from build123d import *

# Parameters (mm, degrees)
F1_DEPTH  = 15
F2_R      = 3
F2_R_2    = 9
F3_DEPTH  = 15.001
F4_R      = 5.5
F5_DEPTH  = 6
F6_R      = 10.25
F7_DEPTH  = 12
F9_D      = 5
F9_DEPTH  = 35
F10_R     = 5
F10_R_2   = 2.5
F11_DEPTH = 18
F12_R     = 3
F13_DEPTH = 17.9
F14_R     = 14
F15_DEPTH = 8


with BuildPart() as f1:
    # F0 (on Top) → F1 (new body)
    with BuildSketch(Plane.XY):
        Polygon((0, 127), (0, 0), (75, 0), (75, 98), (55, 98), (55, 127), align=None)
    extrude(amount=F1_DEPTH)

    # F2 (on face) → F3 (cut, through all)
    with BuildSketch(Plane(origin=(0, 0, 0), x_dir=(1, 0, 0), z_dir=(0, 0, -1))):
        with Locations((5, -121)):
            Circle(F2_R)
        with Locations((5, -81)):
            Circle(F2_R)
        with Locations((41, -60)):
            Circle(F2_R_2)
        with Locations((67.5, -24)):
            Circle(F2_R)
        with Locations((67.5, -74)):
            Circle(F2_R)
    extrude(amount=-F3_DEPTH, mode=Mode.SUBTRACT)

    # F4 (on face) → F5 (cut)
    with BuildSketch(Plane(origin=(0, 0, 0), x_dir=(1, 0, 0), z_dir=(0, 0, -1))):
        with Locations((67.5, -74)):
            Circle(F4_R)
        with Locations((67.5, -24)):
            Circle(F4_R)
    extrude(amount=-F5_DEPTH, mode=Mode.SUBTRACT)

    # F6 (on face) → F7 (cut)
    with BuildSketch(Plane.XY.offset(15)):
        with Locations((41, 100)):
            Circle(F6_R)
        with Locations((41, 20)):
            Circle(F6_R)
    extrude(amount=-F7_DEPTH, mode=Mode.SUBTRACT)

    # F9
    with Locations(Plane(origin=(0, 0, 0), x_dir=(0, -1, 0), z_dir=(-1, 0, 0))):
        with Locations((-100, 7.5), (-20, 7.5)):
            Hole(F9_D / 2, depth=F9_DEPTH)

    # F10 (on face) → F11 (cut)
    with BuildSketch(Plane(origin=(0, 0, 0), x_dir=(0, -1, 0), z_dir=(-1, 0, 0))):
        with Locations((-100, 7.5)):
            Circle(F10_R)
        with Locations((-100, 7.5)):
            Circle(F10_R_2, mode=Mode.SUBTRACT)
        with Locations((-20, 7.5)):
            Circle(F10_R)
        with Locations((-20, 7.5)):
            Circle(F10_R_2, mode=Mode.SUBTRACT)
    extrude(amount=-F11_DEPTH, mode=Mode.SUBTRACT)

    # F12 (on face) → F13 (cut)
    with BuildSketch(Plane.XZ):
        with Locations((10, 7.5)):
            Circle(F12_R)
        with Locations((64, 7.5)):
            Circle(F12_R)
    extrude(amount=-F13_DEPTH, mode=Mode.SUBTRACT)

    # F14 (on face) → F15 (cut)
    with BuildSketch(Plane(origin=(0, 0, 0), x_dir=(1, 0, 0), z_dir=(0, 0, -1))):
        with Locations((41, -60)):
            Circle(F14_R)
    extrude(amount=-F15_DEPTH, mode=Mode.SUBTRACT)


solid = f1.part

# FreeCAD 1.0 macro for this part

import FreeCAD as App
import Part
import Sketcher

V = App.Vector


def add_polygon(sketch, points):
    """Adds a closed chain of lines whose ends are joined by coincident constraints."""
    first, n = sketch.GeometryCount, len(points)
    for a, b in zip(points, points[1:] + points[:1]):
        sketch.addGeometry(Part.LineSegment(App.Vector(*a, 0), App.Vector(*b, 0)), False)
    for i in range(n):
        sketch.addConstraint(Sketcher.Constraint("Coincident", first + i, 2, first + (i + 1) % n, 1))

doc = App.newDocument("Part")
body = doc.addObject("PartDesign::Body", "Body")

sketch1 = doc.addObject("Sketcher::SketchObject", "Sketch")
body.addObject(sketch1)
sketch1.AttachmentSupport = (doc.XY_Plane, [""])
sketch1.MapMode = "FlatFace"
add_polygon(sketch1, [(0, 127), (0, 0), (75, 0), (75, 98), (55, 98), (55, 127)])
sketch1.addConstraint([
    Sketcher.Constraint("Vertical", 0),
    Sketcher.Constraint("Horizontal", 1),
    Sketcher.Constraint("Vertical", 2),
    Sketcher.Constraint("Horizontal", 3),
    Sketcher.Constraint("Vertical", 4),
    Sketcher.Constraint("Horizontal", 5),
    Sketcher.Constraint("Coincident", 0, 2, -1, 1),
    Sketcher.Constraint("DistanceX", 1, 1, 1, 2, 75.0),
    Sketcher.Constraint("DistanceX", 3, 2, 3, 1, 20.0),
    Sketcher.Constraint("DistanceY", 0, 2, 0, 1, 127.0),
    Sketcher.Constraint("DistanceY", 2, 1, 2, 2, 98.0),
])
pad1 = doc.addObject("PartDesign::Pad", "Pad")
body.addObject(pad1)
pad1.Profile = sketch1
pad1.Length = 15

sketch2 = doc.addObject("Sketcher::SketchObject", "Sketch001")
body.addObject(sketch2)
sketch2.AttachmentSupport = (doc.XY_Plane, [""])
sketch2.MapMode = "FlatFace"
sketch2.addGeometry([
    Part.Circle(V(5, 121, 0), V(0, 0, 1), 3),
    Part.Circle(V(5, 81, 0), V(0, 0, 1), 3),
    Part.Circle(V(41, 60, 0), V(0, 0, 1), 9),
    Part.Circle(V(67.5, 24, 0), V(0, 0, 1), 3),
    Part.Circle(V(67.5, 74, 0), V(0, 0, 1), 3),
], False)
sketch2.addConstraint([
    Sketcher.Constraint("Equal", 0, 1),
    Sketcher.Constraint("Equal", 1, 3),
    Sketcher.Constraint("Equal", 3, 4),
    Sketcher.Constraint("Vertical", 0, 3, 1, 3),
    Sketcher.Constraint("Vertical", 3, 3, 4, 3),
    Sketcher.Constraint("Diameter", 0, 6.0),
    Sketcher.Constraint("Diameter", 2, 18.0),
    Sketcher.Constraint("DistanceX", -1, 1, 0, 3, 5.0),
    Sketcher.Constraint("DistanceY", -1, 1, 0, 3, 121.0),
    Sketcher.Constraint("DistanceY", -1, 1, 1, 3, 81.0),
    Sketcher.Constraint("DistanceX", -1, 1, 2, 3, 41.0),
    Sketcher.Constraint("DistanceY", -1, 1, 2, 3, 60.0),
    Sketcher.Constraint("DistanceY", -1, 1, 3, 3, 24.0),
    Sketcher.Constraint("DistanceY", -1, 1, 4, 3, 74.0),
    Sketcher.Constraint("DistanceX", -1, 1, 3, 3, 67.5),
])
pocket1 = doc.addObject("PartDesign::Pocket", "Pocket")
body.addObject(pocket1)
pocket1.Profile = sketch2
pocket1.Type = "ThroughAll"
pocket1.Reversed = True

sketch3 = doc.addObject("Sketcher::SketchObject", "Sketch002")
body.addObject(sketch3)
sketch3.AttachmentSupport = (doc.XY_Plane, [""])
sketch3.MapMode = "FlatFace"
sketch3.addGeometry([
    Part.Circle(V(68, 74, 0), V(0, 0, 1), 6),
    Part.Circle(V(68, 24, 0), V(0, 0, 1), 6),
], False)
sketch3.addConstraint([
    Sketcher.Constraint("Equal", 0, 1),
    Sketcher.Constraint("Vertical", 0, 3, 1, 3),
    Sketcher.Constraint("Diameter", 0, 11.0),
    Sketcher.Constraint("DistanceY", -1, 1, 0, 3, 74.0),
    Sketcher.Constraint("DistanceY", -1, 1, 1, 3, 24.0),
    Sketcher.Constraint("DistanceX", -1, 1, 0, 3, 67.5),
])
pocket2 = doc.addObject("PartDesign::Pocket", "Pocket001")
body.addObject(pocket2)
pocket2.Profile = sketch3
pocket2.Length = 6
pocket2.Reversed = True

sketch4 = doc.addObject("Sketcher::SketchObject", "Sketch003")
body.addObject(sketch4)
sketch4.AttachmentSupport = (doc.XY_Plane, [""])
sketch4.MapMode = "FlatFace"
sketch4.AttachmentOffset = App.Placement(V(0, 0, 15), App.Rotation())
sketch4.addGeometry([
    Part.Circle(V(41, 100, 0), V(0, 0, 1), 10),
    Part.Circle(V(41, 20, 0), V(0, 0, 1), 10),
], False)
sketch4.addConstraint([
    Sketcher.Constraint("Equal", 0, 1),
    Sketcher.Constraint("Vertical", 0, 3, 1, 3),
    Sketcher.Constraint("Diameter", 0, 20.5),
    Sketcher.Constraint("DistanceX", -1, 1, 0, 3, 41.0),
    Sketcher.Constraint("DistanceY", -1, 1, 0, 3, 100.0),
    Sketcher.Constraint("DistanceY", -1, 1, 1, 3, 20.0),
])
pocket3 = doc.addObject("PartDesign::Pocket", "Pocket002")
body.addObject(pocket3)
pocket3.Profile = sketch4
pocket3.Length = 12

sketch5 = doc.addObject("Sketcher::SketchObject", "Sketch004")
body.addObject(sketch5)
sketch5.AttachmentSupport = (doc.YZ_Plane, [""])
sketch5.MapMode = "FlatFace"
sketch5.addGeometry([
    Part.Circle(V(100, 7.5, 0), V(0, 0, 1), 2.5),
    Part.Circle(V(20, 7.5, 0), V(0, 0, 1), 2.5),
], False)
sketch5.addConstraint([
    Sketcher.Constraint("Equal", 0, 1),
    Sketcher.Constraint("Horizontal", 0, 3, 1, 3),
    Sketcher.Constraint("Diameter", 0, 5.0),
    Sketcher.Constraint("DistanceX", -1, 1, 0, 3, 100.0),
    Sketcher.Constraint("DistanceX", -1, 1, 1, 3, 20.0),
    Sketcher.Constraint("DistanceY", -1, 1, 0, 3, 7.5),
])
doc.recompute()
hole = doc.addObject("PartDesign::Hole", "Hole")
body.addObject(hole)
hole.Profile = sketch5
hole.ThreadType = "None"
hole.Diameter = 5
hole.DepthType = "Dimension"
hole.Depth = 35
hole.DrillPoint = "Flat"
hole.Reversed = True

sketch6 = doc.addObject("Sketcher::SketchObject", "Sketch005")
body.addObject(sketch6)
sketch6.AttachmentSupport = (doc.YZ_Plane, [""])
sketch6.MapMode = "FlatFace"
sketch6.addGeometry([
    Part.Circle(V(100, 7.5, 0), V(0, 0, 1), 5),
    Part.Circle(V(100, 7.5, 0), V(0, 0, 1), 2.5),
    Part.Circle(V(20, 7.5, 0), V(0, 0, 1), 5),
    Part.Circle(V(20, 7.5, 0), V(0, 0, 1), 2.5),
], False)
sketch6.addConstraint([
    Sketcher.Constraint("Coincident", 1, 3, 0, 3),
    Sketcher.Constraint("Coincident", 3, 3, 2, 3),
    Sketcher.Constraint("Equal", 0, 2),
    Sketcher.Constraint("Equal", 1, 3),
    Sketcher.Constraint("Horizontal", 1, 3, 2, 3),
    Sketcher.Constraint("Diameter", 0, 10.0),
    Sketcher.Constraint("Diameter", 1, 5.0),
    Sketcher.Constraint("DistanceX", -1, 1, 0, 3, 100.0),
    Sketcher.Constraint("DistanceX", -1, 1, 2, 3, 20.0),
    Sketcher.Constraint("DistanceY", -1, 1, 0, 3, 7.5),
])
pocket4 = doc.addObject("PartDesign::Pocket", "Pocket003")
body.addObject(pocket4)
pocket4.Profile = sketch6
pocket4.Length = 18
pocket4.Reversed = True

sketch7 = doc.addObject("Sketcher::SketchObject", "Sketch006")
body.addObject(sketch7)
sketch7.AttachmentSupport = (doc.XZ_Plane, [""])
sketch7.MapMode = "FlatFace"
sketch7.addGeometry([
    Part.Circle(V(10, 7.5, 0), V(0, 0, 1), 3),
    Part.Circle(V(64, 7.5, 0), V(0, 0, 1), 3),
], False)
sketch7.addConstraint([
    Sketcher.Constraint("Equal", 0, 1),
    Sketcher.Constraint("Horizontal", 0, 3, 1, 3),
    Sketcher.Constraint("Diameter", 0, 6.0),
    Sketcher.Constraint("DistanceX", -1, 1, 0, 3, 10.0),
    Sketcher.Constraint("DistanceX", -1, 1, 1, 3, 64.0),
    Sketcher.Constraint("DistanceY", -1, 1, 0, 3, 7.5),
])
pocket5 = doc.addObject("PartDesign::Pocket", "Pocket004")
body.addObject(pocket5)
pocket5.Profile = sketch7
pocket5.Length = 17.9

sketch8 = doc.addObject("Sketcher::SketchObject", "Sketch007")
body.addObject(sketch8)
sketch8.AttachmentSupport = (doc.XY_Plane, [""])
sketch8.MapMode = "FlatFace"
sketch8.addGeometry(Part.Circle(V(41, 60, 0), V(0, 0, 1), 14), False)
sketch8.addConstraint([
    Sketcher.Constraint("Diameter", 0, 28.0),
    Sketcher.Constraint("DistanceX", -1, 1, 0, 3, 41.0),
    Sketcher.Constraint("DistanceY", -1, 1, 0, 3, 60.0),
])
pocket6 = doc.addObject("PartDesign::Pocket", "Pocket005")
body.addObject(pocket6)
pocket6.Profile = sketch8
pocket6.Length = 8
pocket6.Reversed = True

doc.recompute()
